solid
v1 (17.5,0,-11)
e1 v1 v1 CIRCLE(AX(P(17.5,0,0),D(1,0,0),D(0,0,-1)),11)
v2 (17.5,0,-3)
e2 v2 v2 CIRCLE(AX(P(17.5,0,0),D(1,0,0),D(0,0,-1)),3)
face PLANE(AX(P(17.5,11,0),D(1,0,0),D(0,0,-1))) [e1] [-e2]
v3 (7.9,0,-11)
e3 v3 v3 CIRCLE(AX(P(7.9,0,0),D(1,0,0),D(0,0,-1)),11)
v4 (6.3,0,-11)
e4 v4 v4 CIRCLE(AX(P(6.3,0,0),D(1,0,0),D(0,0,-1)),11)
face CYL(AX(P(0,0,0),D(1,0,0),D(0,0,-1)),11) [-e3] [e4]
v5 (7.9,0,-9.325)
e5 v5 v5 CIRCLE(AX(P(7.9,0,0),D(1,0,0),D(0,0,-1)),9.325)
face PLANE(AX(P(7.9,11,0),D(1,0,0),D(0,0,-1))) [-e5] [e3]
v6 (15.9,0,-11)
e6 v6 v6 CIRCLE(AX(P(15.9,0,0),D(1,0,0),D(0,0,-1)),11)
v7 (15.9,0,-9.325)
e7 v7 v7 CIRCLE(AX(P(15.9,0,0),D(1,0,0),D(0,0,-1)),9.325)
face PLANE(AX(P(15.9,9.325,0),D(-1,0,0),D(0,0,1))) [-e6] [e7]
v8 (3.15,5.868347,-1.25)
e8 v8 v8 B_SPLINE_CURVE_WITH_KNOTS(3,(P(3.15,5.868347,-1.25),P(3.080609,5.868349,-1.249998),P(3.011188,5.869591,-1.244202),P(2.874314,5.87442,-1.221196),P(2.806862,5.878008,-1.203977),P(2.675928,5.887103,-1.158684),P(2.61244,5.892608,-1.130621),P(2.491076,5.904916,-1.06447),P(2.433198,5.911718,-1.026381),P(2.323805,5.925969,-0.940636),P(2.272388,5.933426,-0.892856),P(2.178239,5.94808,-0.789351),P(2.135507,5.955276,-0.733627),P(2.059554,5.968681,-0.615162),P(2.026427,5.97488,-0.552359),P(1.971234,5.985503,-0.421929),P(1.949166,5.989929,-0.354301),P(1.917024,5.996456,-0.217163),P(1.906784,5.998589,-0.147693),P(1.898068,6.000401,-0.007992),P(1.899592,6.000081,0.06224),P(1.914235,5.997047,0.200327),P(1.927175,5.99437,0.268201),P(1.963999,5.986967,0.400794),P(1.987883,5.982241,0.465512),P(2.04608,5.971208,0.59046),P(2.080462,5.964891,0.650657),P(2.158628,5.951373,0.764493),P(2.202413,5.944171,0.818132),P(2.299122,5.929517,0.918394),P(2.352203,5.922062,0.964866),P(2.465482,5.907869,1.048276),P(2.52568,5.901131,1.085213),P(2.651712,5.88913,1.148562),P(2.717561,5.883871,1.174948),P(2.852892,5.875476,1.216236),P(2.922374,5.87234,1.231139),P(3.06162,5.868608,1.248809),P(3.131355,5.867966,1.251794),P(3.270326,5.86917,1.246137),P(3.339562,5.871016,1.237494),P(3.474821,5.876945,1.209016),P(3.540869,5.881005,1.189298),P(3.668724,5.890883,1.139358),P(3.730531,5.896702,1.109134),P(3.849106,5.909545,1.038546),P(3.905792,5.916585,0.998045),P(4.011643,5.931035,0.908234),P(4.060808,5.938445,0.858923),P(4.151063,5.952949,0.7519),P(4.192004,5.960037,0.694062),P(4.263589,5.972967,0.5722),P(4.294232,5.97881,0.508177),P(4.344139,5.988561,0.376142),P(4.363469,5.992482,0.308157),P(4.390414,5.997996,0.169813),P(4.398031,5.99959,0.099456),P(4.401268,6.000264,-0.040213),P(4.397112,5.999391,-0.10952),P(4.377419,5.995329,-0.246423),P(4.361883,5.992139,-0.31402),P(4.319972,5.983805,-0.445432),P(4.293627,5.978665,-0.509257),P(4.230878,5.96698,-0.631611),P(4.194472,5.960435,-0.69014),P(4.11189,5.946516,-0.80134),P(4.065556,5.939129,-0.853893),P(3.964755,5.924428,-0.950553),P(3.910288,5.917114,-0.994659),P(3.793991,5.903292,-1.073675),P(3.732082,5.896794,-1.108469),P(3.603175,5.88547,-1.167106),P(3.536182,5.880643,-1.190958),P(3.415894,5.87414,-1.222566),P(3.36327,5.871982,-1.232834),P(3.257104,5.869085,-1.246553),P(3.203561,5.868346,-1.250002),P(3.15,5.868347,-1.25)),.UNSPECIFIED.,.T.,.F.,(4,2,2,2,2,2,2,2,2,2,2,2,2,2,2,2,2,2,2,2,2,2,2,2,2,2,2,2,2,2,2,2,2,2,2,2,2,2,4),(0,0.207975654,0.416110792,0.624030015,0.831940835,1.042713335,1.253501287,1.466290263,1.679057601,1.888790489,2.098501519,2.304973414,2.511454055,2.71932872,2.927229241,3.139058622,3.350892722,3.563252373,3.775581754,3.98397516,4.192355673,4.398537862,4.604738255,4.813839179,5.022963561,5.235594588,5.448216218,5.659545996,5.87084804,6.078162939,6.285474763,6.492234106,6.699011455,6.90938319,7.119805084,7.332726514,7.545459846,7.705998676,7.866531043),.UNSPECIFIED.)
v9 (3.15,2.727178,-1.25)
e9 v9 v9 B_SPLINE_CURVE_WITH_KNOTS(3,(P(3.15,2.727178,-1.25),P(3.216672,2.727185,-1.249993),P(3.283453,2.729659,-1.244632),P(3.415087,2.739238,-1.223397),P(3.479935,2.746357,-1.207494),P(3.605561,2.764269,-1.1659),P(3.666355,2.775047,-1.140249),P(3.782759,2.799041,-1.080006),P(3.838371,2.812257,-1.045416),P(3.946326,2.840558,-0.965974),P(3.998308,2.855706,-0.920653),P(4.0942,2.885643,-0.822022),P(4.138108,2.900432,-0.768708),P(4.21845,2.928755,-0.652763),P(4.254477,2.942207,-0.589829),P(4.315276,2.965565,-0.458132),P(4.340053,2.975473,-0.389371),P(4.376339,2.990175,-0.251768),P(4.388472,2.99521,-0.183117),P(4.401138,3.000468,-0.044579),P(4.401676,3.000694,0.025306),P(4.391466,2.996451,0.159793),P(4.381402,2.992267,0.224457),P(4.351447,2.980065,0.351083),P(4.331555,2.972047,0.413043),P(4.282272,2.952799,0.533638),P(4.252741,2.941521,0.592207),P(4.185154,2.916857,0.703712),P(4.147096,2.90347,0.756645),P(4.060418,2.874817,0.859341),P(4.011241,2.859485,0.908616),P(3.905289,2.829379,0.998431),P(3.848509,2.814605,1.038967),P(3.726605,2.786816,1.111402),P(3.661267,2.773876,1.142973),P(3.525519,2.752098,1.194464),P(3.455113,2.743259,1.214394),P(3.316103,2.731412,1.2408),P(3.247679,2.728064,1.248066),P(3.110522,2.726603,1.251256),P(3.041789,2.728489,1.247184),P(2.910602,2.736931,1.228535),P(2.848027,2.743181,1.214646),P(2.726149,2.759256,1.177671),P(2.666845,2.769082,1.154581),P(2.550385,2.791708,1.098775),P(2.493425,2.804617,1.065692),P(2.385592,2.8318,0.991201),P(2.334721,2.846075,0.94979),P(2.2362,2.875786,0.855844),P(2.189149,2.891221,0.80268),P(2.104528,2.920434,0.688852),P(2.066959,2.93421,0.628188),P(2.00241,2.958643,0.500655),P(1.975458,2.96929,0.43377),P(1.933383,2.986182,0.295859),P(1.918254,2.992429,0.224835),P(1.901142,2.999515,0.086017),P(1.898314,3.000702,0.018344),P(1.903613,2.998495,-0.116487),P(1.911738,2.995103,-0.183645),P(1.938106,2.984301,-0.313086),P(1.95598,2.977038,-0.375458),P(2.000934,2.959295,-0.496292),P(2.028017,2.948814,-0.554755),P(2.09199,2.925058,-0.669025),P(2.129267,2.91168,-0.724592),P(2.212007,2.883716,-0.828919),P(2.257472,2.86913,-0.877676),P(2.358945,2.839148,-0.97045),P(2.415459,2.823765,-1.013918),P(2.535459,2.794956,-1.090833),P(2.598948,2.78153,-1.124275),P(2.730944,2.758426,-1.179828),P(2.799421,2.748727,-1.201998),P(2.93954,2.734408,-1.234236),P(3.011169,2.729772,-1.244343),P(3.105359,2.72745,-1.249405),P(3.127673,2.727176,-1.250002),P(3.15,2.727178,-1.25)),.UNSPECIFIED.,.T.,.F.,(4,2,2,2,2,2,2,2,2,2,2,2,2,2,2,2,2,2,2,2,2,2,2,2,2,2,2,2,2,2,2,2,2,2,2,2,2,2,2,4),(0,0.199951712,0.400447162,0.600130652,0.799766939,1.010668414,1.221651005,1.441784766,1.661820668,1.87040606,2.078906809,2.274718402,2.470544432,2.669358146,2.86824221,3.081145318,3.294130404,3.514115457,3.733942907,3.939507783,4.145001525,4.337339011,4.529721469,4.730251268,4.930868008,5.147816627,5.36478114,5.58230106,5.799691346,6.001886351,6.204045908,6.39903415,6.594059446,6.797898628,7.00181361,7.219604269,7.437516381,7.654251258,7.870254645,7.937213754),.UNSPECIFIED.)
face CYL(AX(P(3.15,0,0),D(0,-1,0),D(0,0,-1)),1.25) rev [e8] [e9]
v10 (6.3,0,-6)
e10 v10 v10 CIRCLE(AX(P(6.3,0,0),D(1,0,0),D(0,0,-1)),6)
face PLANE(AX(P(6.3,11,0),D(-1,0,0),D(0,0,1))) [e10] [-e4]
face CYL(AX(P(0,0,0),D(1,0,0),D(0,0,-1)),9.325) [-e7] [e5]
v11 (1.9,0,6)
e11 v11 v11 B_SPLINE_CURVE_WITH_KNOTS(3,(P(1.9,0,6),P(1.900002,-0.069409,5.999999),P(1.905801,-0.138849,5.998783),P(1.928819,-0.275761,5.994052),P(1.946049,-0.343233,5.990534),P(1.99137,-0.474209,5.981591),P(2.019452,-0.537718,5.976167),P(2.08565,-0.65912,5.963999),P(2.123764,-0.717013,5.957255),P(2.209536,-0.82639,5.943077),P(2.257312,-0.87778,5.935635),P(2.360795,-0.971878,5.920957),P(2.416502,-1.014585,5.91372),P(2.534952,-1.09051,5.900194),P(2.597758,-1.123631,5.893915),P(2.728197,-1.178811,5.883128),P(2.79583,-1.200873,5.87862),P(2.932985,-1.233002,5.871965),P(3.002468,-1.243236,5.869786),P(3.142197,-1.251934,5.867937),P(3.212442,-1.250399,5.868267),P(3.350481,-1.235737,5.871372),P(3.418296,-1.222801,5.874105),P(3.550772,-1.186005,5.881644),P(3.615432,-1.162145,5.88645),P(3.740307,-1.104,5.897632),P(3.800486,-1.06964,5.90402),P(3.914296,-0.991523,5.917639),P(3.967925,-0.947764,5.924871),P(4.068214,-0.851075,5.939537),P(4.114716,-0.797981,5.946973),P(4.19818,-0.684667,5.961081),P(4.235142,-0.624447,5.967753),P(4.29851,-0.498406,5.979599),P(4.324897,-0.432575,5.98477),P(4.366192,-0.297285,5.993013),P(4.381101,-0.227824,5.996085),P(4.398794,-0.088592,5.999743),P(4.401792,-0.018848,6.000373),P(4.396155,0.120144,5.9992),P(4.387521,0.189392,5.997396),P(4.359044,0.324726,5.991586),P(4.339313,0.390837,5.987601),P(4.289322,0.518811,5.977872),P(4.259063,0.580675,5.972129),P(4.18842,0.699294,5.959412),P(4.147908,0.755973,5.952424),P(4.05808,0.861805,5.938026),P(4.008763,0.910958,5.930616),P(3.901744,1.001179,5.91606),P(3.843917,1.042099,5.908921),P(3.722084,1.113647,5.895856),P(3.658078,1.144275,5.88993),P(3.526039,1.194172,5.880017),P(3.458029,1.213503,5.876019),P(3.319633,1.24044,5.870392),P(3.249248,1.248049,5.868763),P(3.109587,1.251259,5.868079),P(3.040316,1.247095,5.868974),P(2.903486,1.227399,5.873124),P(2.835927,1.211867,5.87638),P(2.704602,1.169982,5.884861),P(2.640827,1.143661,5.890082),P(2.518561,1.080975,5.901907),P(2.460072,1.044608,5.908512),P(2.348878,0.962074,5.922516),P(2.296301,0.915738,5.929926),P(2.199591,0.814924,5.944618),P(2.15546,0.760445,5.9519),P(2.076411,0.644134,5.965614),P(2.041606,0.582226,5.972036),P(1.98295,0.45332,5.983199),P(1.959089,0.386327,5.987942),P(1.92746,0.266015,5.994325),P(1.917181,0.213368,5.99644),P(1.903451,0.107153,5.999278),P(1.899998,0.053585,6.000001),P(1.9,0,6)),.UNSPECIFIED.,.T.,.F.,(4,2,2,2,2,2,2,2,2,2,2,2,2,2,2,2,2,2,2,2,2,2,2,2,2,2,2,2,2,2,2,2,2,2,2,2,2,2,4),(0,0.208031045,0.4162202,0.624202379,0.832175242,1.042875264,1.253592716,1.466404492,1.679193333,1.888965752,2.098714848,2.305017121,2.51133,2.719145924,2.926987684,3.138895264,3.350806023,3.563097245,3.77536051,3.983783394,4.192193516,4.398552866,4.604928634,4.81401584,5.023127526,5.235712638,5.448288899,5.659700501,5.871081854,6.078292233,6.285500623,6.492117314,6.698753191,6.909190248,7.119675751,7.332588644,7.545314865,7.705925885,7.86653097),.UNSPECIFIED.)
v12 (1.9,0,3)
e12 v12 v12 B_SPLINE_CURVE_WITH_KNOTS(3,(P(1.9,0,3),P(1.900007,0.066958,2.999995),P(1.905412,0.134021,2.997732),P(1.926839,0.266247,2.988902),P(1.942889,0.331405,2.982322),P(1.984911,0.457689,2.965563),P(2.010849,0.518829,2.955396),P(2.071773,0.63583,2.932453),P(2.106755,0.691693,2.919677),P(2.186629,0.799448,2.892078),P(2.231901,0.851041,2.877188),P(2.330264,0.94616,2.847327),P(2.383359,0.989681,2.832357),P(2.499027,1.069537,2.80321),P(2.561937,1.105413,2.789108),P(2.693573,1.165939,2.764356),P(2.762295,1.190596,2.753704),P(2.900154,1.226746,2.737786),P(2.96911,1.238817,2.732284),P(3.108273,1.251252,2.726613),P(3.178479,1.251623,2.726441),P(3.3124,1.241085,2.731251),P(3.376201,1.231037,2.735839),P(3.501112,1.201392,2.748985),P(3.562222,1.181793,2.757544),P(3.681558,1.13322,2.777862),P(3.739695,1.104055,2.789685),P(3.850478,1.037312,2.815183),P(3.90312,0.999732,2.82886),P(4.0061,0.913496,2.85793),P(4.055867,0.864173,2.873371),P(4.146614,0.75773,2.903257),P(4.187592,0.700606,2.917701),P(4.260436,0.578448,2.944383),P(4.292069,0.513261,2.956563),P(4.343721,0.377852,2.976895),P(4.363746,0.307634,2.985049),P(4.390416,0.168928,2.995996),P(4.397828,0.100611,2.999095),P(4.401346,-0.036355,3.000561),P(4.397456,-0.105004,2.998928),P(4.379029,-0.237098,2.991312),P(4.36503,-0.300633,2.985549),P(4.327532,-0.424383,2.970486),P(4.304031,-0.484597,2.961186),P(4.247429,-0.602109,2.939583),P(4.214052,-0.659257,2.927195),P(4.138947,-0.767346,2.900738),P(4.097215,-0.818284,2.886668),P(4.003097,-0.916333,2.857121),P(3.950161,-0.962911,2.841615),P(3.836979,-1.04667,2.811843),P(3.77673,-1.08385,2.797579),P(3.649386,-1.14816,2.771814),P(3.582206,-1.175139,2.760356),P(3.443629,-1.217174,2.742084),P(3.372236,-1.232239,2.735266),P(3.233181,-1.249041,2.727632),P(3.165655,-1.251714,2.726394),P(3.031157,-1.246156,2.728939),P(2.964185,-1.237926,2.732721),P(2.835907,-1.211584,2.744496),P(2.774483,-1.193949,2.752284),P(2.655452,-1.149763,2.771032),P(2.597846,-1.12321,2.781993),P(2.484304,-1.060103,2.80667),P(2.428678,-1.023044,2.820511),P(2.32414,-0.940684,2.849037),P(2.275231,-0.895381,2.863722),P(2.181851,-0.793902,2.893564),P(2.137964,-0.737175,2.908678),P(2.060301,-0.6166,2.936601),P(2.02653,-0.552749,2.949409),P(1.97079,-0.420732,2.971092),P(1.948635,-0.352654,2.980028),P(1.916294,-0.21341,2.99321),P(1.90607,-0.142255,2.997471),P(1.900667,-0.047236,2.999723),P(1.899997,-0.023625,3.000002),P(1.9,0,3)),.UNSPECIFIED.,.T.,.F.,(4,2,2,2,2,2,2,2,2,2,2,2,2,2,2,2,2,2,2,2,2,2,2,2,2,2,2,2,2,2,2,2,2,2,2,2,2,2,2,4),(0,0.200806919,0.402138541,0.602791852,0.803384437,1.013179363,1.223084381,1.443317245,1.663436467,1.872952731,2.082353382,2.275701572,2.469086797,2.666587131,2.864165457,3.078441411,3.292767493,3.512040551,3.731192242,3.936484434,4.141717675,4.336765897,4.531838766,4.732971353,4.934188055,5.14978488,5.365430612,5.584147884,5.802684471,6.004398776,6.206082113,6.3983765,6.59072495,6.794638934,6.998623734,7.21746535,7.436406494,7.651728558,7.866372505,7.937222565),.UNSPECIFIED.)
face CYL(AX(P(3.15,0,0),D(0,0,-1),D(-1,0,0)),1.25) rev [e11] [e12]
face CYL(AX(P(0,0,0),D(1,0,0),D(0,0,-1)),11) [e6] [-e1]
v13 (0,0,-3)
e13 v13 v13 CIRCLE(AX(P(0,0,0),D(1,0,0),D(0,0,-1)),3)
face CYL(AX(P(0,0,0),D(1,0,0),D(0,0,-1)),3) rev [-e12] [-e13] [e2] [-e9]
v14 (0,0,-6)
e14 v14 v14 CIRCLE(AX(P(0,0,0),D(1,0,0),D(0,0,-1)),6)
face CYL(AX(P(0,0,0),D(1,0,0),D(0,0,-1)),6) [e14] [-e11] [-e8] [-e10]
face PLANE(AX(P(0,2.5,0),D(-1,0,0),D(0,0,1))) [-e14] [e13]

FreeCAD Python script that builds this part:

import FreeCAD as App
import Part
import Sketcher
from FreeCAD import Vector


def add_polygon(sketch, points):
    """Adds a closed chain of lines whose ends are joined by coincident constraints."""
    first, n = sketch.GeometryCount, len(points)
    for a, b in zip(points, points[1:] + points[:1]):
        sketch.addGeometry(Part.LineSegment(App.Vector(*a, 0), App.Vector(*b, 0)), False)
    for i in range(n):
        sketch.addConstraint(Sketcher.Constraint("Coincident", first + i, 2, first + (i + 1) % n, 1))

doc = App.newDocument("Part")
body = doc.addObject("PartDesign::Body", "Body")

# Sketch on XY plane
sketch1 = doc.addObject("Sketcher::SketchObject", "Sketch")
body.addObject(sketch1)
sketch1.AttachmentSupport = (doc.XY_Plane, [""])
sketch1.MapMode = "FlatFace"
add_polygon(sketch1, [(0, 6), (0, 2.5), (17.5, 2.5), (17.5, 11), (15.9, 11), (15.9, 9.3), (7.9, 9.3), (7.9, 11), (6.3, 11), (6.3, 6)])  # lines 0-9
sketch1.addConstraint(Sketcher.Constraint("Vertical", 0))
sketch1.addConstraint(Sketcher.Constraint("Horizontal", 1))
sketch1.addConstraint(Sketcher.Constraint("Vertical", 2))
sketch1.addConstraint(Sketcher.Constraint("Horizontal", 3))
sketch1.addConstraint(Sketcher.Constraint("Vertical", 4))
sketch1.addConstraint(Sketcher.Constraint("Horizontal", 5))
sketch1.addConstraint(Sketcher.Constraint("Vertical", 6))
sketch1.addConstraint(Sketcher.Constraint("Horizontal", 7))
sketch1.addConstraint(Sketcher.Constraint("Vertical", 8))
sketch1.addConstraint(Sketcher.Constraint("Horizontal", 9))
sketch1.addConstraint(Sketcher.Constraint("PointOnObject", 0, 2, -2))
sketch1.addConstraint(Sketcher.Constraint("Horizontal", 3, 2, 6, 2))
sketch1.addConstraint(Sketcher.Constraint("Equal", 3, 7))
sketch1.addConstraint(Sketcher.Constraint("DistanceX", 5, 2, 5, 1, 8.0))
sketch1.addConstraint(Sketcher.Constraint("DistanceY", 8, 2, 8, 1, 5.0))
sketch1.addConstraint(Sketcher.Constraint("DistanceX", 1, 1, 1, 2, 17.5))
sketch1.addConstraint(Sketcher.Constraint("DistanceX", 3, 2, 3, 1, 1.6))
sketch1.addConstraint(Sketcher.Constraint("DistanceY", 0, 2, 0, 1, 3.5))
sketch1.addConstraint(Sketcher.Constraint("DistanceY", -1, 1, 2, 2, 11.0))
sketch1.addConstraint(Sketcher.Constraint("DistanceY", 4, 2, 4, 1, 1.675))
revolution = doc.addObject("PartDesign::Revolution", "Revolution")
body.addObject(revolution)
revolution.Profile = sketch1
revolution.ReferenceAxis = (sketch1, ["H_Axis"])
revolution.Angle = 360

# Sketch on YZ plane
sketch2 = doc.addObject("Sketcher::SketchObject", "Sketch001")
body.addObject(sketch2)
sketch2.AttachmentSupport = (doc.YZ_Plane, [""])
sketch2.MapMode = "FlatFace"
sketch2.AttachmentOffset = App.Placement(Vector(0, 0, 3.15), App.Rotation())
add_polygon(sketch2, [(11, 0), (0, 0), (0, -1.2), (11, -1.2)])  # lines 0-3
sketch2.addConstraint(Sketcher.Constraint("Horizontal", 0))
sketch2.addConstraint(Sketcher.Constraint("Vertical", 1))
sketch2.addConstraint(Sketcher.Constraint("Horizontal", 2))
sketch2.addConstraint(Sketcher.Constraint("Vertical", 3))
sketch2.addConstraint(Sketcher.Constraint("Coincident", 0, 2, -1, 1))
sketch2.addConstraint(Sketcher.Constraint("DistanceX", 0, 2, 0, 1, 11.0))
sketch2.addConstraint(Sketcher.Constraint("DistanceY", 1, 2, 1, 1, 1.25))
groove = doc.addObject("PartDesign::Groove", "Groove")
body.addObject(groove)
groove.Profile = sketch2
groove.ReferenceAxis = (sketch2, ["H_Axis"])
groove.Angle = 360

# Sketch on YZ plane
sketch3 = doc.addObject("Sketcher::SketchObject", "Sketch002")
body.addObject(sketch3)
sketch3.AttachmentSupport = (doc.YZ_Plane, [""])
sketch3.MapMode = "FlatFace"
sketch3.AttachmentOffset = App.Placement(Vector(0, 0, 3.15), App.Rotation())
add_polygon(sketch3, [(0, 11), (0, 0), (1.2, 0), (1.2, 11)])  # lines 0-3
sketch3.addConstraint(Sketcher.Constraint("Vertical", 0))
sketch3.addConstraint(Sketcher.Constraint("Horizontal", 1))
sketch3.addConstraint(Sketcher.Constraint("Vertical", 2))
sketch3.addConstraint(Sketcher.Constraint("Horizontal", 3))
sketch3.addConstraint(Sketcher.Constraint("Coincident", 0, 2, -1, 1))
sketch3.addConstraint(Sketcher.Constraint("DistanceY", 0, 2, 0, 1, 11.0))
sketch3.addConstraint(Sketcher.Constraint("DistanceX", 1, 1, 1, 2, 1.25))
groove2 = doc.addObject("PartDesign::Groove", "Groove001")
body.addObject(groove2)
groove2.Profile = sketch3
groove2.ReferenceAxis = (sketch3, ["V_Axis"])
groove2.Angle = 360

# Sketch on YZ plane
sketch4 = doc.addObject("Sketcher::SketchObject", "Sketch003")
body.addObject(sketch4)
sketch4.AttachmentSupport = (doc.YZ_Plane, [""])
sketch4.MapMode = "FlatFace"
sketch4.AttachmentOffset = App.Placement(Vector(0, 0, 17.5), App.Rotation())
sketch4.addGeometry(Part.Circle(Vector(0, 0, 0), Vector(0, 0, 1), 3), False)
sketch4.addConstraint(Sketcher.Constraint("Coincident", 0, 3, -1, 1))
sketch4.addConstraint(Sketcher.Constraint("Diameter", 0, 6.0))
pocket1 = doc.addObject("PartDesign::Pocket", "Pocket")
body.addObject(pocket1)
pocket1.Profile = sketch4
pocket1.Type = "ThroughAll"

doc.recompute()
